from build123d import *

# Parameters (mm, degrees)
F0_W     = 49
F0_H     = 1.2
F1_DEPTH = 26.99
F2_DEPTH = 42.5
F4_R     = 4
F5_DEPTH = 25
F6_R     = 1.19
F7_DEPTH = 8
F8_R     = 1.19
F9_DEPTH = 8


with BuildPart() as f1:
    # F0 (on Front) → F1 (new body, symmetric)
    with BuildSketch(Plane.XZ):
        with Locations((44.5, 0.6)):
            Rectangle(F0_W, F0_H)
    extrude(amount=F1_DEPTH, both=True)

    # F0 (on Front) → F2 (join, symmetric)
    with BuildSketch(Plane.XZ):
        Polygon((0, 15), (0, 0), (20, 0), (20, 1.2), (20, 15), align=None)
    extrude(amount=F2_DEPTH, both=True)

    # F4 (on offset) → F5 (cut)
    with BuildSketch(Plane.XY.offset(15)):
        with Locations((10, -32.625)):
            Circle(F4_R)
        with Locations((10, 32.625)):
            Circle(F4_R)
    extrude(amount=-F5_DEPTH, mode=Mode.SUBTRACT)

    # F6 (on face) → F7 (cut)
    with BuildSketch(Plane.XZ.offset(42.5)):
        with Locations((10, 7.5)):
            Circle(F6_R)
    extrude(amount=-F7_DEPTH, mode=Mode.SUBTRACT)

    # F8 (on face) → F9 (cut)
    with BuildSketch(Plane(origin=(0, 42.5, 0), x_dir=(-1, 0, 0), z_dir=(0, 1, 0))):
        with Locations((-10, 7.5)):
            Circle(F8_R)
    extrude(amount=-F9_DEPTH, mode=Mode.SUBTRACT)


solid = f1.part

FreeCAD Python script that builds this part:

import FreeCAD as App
import Part
import Sketcher

V = App.Vector
Q = App.Units.Quantity


def add_polygon(sketch, points):
    """Adds a closed chain of lines whose ends are joined by coincident constraints."""
    first, n = sketch.GeometryCount, len(points)
    for a, b in zip(points, points[1:] + points[:1]):
        sketch.addGeometry(Part.LineSegment(App.Vector(*a, 0), App.Vector(*b, 0)), False)
    for i in range(n):
        sketch.addConstraint(Sketcher.Constraint("Coincident", first + i, 2, first + (i + 1) % n, 1))

doc = App.newDocument("Part")
body = doc.addObject("PartDesign::Body", "Body")

# Sketch on XZ plane
sketch1 = body.newObject("Sketcher::SketchObject", "Sketch")
sketch1.AttachmentSupport = (doc.getObject("XZ_Plane"), [""])
sketch1.MapMode = "FlatFace"
add_polygon(sketch1, [(20, 1.2), (20, 0), (69, 0), (69, 1.2)])  # lines 0-3
sketch1.addConstraint([
    Sketcher.Constraint("Vertical", 0),
    Sketcher.Constraint("Horizontal", 1),
    Sketcher.Constraint("Vertical", 2),
    Sketcher.Constraint("Horizontal", 3),
    Sketcher.Constraint("PointOnObject", 0, 2, -1),
    Sketcher.Constraint("DistanceX", 1, 1, 1, 2, Q("49 mm")),
    Sketcher.Constraint("DistanceY", 0, 2, 0, 1, Q("1.2 mm")),
    Sketcher.Constraint("DistanceX", -1, 1, 0, 2, Q("20 mm")),
])
pad1 = body.newObject("PartDesign::Pad", "Pad")
pad1.Profile = sketch1
pad1.Length = 53.98
pad1.Midplane = True

# Sketch on XZ plane
sketch2 = body.newObject("Sketcher::SketchObject", "Sketch001")
sketch2.AttachmentSupport = (doc.getObject("XZ_Plane"), [""])
sketch2.MapMode = "FlatFace"
add_polygon(sketch2, [(0, 15), (0, 0), (20, 0), (20, 15)])  # lines 0-3
sketch2.addConstraint([
    Sketcher.Constraint("Vertical", 0),
    Sketcher.Constraint("Horizontal", 1),
    Sketcher.Constraint("Vertical", 2),
    Sketcher.Constraint("Horizontal", 3),
    Sketcher.Constraint("Coincident", 0, 2, -1, 1),
    Sketcher.Constraint("DistanceX", 1, 1, 1, 2, Q("20 mm")),
    Sketcher.Constraint("DistanceY", 0, 2, 0, 1, Q("15 mm")),
])
pad2 = body.newObject("PartDesign::Pad", "Pad001")
pad2.Profile = sketch2
pad2.Length = 85
pad2.Midplane = True

# Sketch on XY plane
sketch3 = body.newObject("Sketcher::SketchObject", "Sketch002")
sketch3.AttachmentSupport = (doc.getObject("XY_Plane"), [""])
sketch3.MapMode = "FlatFace"
sketch3.AttachmentOffset = App.Placement(V(0, 0, 15), App.Rotation())
sketch3.addGeometry([
    Part.Circle(V(10, -32.625, 0), V(0, 0, 1), 4),
    Part.Circle(V(10, 32.625, 0), V(0, 0, 1), 4),
], False)
sketch3.addConstraint([
    Sketcher.Constraint("Equal", 0, 1),
    Sketcher.Constraint("Symmetric", 0, 3, 1, 3, -1),
    Sketcher.Constraint("Diameter", 0, Q("8 mm")),
    Sketcher.Constraint("DistanceX", -1, 1, 0, 3, Q("10 mm")),
    Sketcher.Constraint("DistanceY", 0, 3, 1, 3, Q("65.25 mm")),
])
pocket1 = body.newObject("PartDesign::Pocket", "Pocket")
pocket1.Profile = sketch3
pocket1.Length = 25

# Sketch on XZ plane
sketch4 = body.newObject("Sketcher::SketchObject", "Sketch003")
sketch4.AttachmentSupport = (doc.getObject("XZ_Plane"), [""])
sketch4.MapMode = "FlatFace"
sketch4.AttachmentOffset = App.Placement(V(0, 0, 42.5), App.Rotation())
sketch4.addGeometry(Part.Circle(V(10, 7.5, 0), V(0, 0, 1), 1.19), False)
sketch4.addConstraint([
    Sketcher.Constraint("Diameter", 0, Q("2.38 mm")),
    Sketcher.Constraint("DistanceX", -1, 1, 0, 3, Q("10 mm")),
    Sketcher.Constraint("DistanceY", -1, 1, 0, 3, Q("7.5 mm")),
])
pocket2 = body.newObject("PartDesign::Pocket", "Pocket001")
pocket2.Profile = sketch4
pocket2.Length = 8

# Sketch on XZ plane
sketch5 = body.newObject("Sketcher::SketchObject", "Sketch004")
sketch5.AttachmentSupport = (doc.getObject("XZ_Plane"), [""])
sketch5.MapMode = "FlatFace"
sketch5.AttachmentOffset = App.Placement(V(0, 0, -42.5), App.Rotation())
sketch5.addGeometry(Part.Circle(V(10, 7.5, 0), V(0, 0, 1), 1.19), False)
sketch5.addConstraint([
    Sketcher.Constraint("Diameter", 0, Q("2.38 mm")),
    Sketcher.Constraint("DistanceX", -1, 1, 0, 3, Q("10 mm")),
    Sketcher.Constraint("DistanceY", -1, 1, 0, 3, Q("7.5 mm")),
])
pocket3 = body.newObject("PartDesign::Pocket", "Pocket002")
pocket3.Profile = sketch5
pocket3.Length = 8
pocket3.Reversed = True

doc.recompute()
